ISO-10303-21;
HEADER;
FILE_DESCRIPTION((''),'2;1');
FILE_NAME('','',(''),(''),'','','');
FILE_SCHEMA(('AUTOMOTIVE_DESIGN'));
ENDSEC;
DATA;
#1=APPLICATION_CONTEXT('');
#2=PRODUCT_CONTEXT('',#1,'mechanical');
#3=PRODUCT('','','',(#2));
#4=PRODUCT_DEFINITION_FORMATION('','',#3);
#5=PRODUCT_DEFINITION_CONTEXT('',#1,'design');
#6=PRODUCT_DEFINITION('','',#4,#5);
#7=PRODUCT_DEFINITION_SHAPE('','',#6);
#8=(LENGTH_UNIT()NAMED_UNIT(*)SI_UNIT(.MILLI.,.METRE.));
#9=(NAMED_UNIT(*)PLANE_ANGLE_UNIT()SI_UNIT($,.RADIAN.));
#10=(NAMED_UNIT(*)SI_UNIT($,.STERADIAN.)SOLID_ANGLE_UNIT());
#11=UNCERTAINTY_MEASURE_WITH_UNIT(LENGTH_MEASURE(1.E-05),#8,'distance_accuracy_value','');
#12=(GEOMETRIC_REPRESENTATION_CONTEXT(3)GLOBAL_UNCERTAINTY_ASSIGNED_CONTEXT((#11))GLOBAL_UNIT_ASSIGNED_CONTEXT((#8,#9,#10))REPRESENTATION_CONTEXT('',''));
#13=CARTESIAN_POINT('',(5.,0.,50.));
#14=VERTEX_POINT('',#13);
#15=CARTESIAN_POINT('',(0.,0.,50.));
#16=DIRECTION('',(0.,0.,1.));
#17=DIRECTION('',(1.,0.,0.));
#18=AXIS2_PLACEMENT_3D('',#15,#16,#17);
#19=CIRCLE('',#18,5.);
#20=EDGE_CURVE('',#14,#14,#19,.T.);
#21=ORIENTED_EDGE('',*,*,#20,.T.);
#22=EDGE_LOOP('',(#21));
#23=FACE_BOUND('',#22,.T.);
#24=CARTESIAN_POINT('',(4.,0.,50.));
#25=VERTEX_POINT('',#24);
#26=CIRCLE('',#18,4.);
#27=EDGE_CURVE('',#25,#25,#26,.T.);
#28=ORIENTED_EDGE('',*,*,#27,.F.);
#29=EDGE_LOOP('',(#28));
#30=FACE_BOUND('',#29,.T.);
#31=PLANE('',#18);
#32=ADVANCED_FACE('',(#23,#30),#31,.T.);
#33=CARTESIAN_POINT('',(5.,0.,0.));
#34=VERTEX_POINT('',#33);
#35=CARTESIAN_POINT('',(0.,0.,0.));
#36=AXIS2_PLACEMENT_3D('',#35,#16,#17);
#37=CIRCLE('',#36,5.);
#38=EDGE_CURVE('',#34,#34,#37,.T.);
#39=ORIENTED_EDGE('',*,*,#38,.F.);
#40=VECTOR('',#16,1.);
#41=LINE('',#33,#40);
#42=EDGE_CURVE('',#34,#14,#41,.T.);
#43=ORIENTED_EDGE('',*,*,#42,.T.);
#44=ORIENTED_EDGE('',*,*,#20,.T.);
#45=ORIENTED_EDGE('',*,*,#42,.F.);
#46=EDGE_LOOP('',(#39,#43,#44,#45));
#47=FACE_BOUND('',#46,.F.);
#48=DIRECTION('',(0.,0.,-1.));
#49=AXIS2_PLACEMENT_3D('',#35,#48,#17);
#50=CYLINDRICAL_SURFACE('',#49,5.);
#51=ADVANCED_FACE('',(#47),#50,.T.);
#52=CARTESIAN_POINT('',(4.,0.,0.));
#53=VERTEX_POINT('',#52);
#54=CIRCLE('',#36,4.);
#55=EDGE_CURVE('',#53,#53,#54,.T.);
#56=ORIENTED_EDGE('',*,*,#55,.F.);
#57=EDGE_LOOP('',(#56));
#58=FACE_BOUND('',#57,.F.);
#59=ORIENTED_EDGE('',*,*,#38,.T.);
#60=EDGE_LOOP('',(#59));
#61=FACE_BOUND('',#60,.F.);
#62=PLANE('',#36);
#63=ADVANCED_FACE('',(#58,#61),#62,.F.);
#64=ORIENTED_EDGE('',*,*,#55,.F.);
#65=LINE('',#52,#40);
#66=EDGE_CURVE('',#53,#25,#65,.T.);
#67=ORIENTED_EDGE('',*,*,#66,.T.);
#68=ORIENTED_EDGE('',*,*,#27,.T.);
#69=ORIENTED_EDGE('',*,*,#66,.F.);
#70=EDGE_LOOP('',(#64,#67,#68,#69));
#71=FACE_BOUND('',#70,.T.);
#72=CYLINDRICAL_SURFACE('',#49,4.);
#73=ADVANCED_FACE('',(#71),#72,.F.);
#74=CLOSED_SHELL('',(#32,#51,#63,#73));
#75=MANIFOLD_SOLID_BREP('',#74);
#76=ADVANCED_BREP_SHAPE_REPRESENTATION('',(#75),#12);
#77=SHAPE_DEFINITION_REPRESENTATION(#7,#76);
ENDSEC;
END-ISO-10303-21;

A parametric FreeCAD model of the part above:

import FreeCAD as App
import Part
import Sketcher
from FreeCAD import Vector

doc = App.newDocument("Part")
params = doc.addObject("Spreadsheet::Sheet", "Params")
for row, (alias, value) in enumerate([
    ("sketch1_diameter", "10 mm"),
    ("sketch1_diameter2", "8 mm"),
    ("pad1_length", "50 mm"),
], start=1):
    params.set(f"A{row}", alias)
    params.set(f"B{row}", "=" + value)
    params.setAlias(f"B{row}", alias)

body = doc.addObject("PartDesign::Body", "Body")

# Sketch on XY plane
sketch1 = body.newObject("Sketcher::SketchObject", "Sketch")
sketch1.AttachmentSupport = (doc.getObject("XY_Plane"), [""])
sketch1.MapMode = "FlatFace"
sketch1.addGeometry(Part.Circle(Vector(0, 0, 0), Vector(0, 0, 1), 5), False)
sketch1.addGeometry(Part.Circle(Vector(0, 0, 0), Vector(0, 0, 1), 4), False)
sketch1.addConstraint(Sketcher.Constraint("Coincident", 0, 3, -1, 1))
sketch1.addConstraint(Sketcher.Constraint("Coincident", 1, 3, -1, 1))
sketch1.addConstraint(Sketcher.Constraint("Diameter", 0, 10.0))
sketch1.addConstraint(Sketcher.Constraint("Diameter", 1, 8.0))
sketch1.setExpression("Constraints[2]", "Params.sketch1_diameter")
sketch1.setExpression("Constraints[3]", "Params.sketch1_diameter2")
pad1 = body.newObject("PartDesign::Pad", "Pad")
pad1.Profile = sketch1
pad1.setExpression("Length", "Params.pad1_length")

doc.recompute()
